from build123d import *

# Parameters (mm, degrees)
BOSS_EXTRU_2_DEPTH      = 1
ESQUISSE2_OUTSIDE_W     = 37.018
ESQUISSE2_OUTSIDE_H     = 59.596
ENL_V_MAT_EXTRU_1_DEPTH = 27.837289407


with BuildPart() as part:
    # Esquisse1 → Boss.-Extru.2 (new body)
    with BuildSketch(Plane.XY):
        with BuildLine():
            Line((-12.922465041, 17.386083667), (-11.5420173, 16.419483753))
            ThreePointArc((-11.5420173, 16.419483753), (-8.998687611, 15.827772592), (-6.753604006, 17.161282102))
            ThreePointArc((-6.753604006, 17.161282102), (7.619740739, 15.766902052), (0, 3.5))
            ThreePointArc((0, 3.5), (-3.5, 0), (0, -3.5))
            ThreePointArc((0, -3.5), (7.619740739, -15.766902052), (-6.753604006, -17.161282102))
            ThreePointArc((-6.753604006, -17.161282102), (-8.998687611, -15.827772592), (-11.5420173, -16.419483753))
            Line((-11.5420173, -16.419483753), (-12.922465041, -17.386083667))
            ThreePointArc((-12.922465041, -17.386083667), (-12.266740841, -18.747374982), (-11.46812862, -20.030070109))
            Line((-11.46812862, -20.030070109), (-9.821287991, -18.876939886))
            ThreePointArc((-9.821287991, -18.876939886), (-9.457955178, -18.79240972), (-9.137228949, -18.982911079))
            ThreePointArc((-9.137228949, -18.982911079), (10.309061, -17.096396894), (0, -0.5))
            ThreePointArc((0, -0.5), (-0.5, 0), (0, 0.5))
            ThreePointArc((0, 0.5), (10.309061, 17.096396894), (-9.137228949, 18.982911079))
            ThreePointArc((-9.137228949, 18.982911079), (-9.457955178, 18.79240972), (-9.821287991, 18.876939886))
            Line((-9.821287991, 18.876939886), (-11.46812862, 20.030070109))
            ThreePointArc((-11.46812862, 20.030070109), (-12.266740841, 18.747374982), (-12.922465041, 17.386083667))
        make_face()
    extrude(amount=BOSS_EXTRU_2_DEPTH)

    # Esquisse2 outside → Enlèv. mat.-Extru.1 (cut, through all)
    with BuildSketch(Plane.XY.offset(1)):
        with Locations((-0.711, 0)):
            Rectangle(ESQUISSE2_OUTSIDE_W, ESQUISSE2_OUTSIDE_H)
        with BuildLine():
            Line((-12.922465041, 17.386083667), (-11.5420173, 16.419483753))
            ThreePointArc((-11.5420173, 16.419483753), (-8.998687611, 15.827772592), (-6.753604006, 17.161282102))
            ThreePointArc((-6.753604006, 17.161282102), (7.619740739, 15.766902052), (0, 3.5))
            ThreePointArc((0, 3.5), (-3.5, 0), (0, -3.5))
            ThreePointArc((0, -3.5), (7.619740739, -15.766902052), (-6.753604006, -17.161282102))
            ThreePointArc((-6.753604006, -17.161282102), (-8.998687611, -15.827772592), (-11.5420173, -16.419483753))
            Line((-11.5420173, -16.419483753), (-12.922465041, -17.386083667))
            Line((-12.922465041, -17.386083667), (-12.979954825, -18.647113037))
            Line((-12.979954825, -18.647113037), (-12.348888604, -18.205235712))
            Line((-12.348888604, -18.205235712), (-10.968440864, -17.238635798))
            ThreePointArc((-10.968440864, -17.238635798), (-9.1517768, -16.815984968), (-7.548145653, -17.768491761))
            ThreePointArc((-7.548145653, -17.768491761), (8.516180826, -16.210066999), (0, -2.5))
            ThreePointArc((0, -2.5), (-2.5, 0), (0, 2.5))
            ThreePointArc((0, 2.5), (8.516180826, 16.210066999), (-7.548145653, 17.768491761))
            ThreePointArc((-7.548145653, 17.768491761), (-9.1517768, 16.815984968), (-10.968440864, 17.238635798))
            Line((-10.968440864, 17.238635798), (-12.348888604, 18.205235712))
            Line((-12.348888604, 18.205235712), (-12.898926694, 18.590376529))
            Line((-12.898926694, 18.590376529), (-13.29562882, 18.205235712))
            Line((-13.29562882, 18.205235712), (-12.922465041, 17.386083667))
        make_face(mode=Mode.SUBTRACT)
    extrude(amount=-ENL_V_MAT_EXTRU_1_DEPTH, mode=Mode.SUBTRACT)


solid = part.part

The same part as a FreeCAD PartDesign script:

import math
import FreeCAD as App
import Part
import Sketcher

V = App.Vector
Q = App.Units.Quantity

doc = App.newDocument("Part")
body = doc.addObject("PartDesign::Body", "Body")

sketch1 = doc.addObject("Sketcher::SketchObject", "Sketch")
body.addObject(sketch1)
sketch1.AttachmentSupport = (doc.XY_Plane, [""])
sketch1.MapMode = "FlatFace"
sketch1.addGeometry([
    Part.LineSegment(V(-12.92, 17.39, 0), V(-11.54, 16.42, 0)),
    Part.ArcOfCircle(Part.Circle(V(-9.53, 19.29, 0), V(0, 0, 1), 3.5), math.radians(-125), math.radians(-37)),
    Part.ArcOfCircle(Part.Circle(V(0, 12, 0), V(0, 0, 1), 8.5), math.radians(-90), math.radians(143)),
    Part.ArcOfCircle(Part.Circle(V(0, 0, 0), V(0, 0, 1), 3.5), math.radians(90), math.radians(270)),
    Part.ArcOfCircle(Part.Circle(V(0, -12, 0), V(0, 0, 1), 8.5), math.radians(-143), math.radians(90)),
    Part.ArcOfCircle(Part.Circle(V(-9.53, -19.29, 0), V(0, 0, 1), 3.5), math.radians(37), math.radians(125)),
    Part.LineSegment(V(-11.54, -16.42, 0), V(-12.92, -17.39, 0)),
    Part.ArcOfCircle(Part.Circle(V(0, -12, 0), V(0, 0, 1), 14), math.radians(-157.37), math.radians(-145)),
    Part.LineSegment(V(-11.47, -20.03, 0), V(-9.82, -18.88, 0)),
    Part.ArcOfCircle(Part.Circle(V(-9.53, -19.29, 0), V(0, 0, 1), 0.5), math.radians(37), math.radians(125)),
    Part.ArcOfCircle(Part.Circle(V(0, -12, 0), V(0, 0, 1), 11.5), math.radians(-143), math.radians(90)),
    Part.ArcOfCircle(Part.Circle(V(0, 0, 0), V(0, 0, 1), 0.5), math.radians(90), math.radians(270)),
    Part.ArcOfCircle(Part.Circle(V(0, 12, 0), V(0, 0, 1), 11.5), math.radians(-90), math.radians(143)),
    Part.ArcOfCircle(Part.Circle(V(-9.53, 19.29, 0), V(0, 0, 1), 0.5), math.radians(-125), math.radians(-37)),
    Part.LineSegment(V(-9.82, 18.88, 0), V(-11.47, 20.03, 0)),
    Part.ArcOfCircle(Part.Circle(V(0, 12, 0), V(0, 0, 1), 14), math.radians(145), math.radians(157.37)),
], False)
sketch1.addConstraint([
    Sketcher.Constraint("Tangent", 0, 2, 1, 1),
    Sketcher.Constraint("Tangent", 1, 2, 2, 2),
    Sketcher.Constraint("Tangent", 2, 1, 3, 1),
    Sketcher.Constraint("Tangent", 3, 2, 4, 2),
    Sketcher.Constraint("Tangent", 4, 1, 5, 1),
    Sketcher.Constraint("Tangent", 5, 2, 6, 1),
    Sketcher.Constraint("Coincident", 6, 2, 7, 1),
    Sketcher.Constraint("Coincident", 7, 2, 8, 1),
    Sketcher.Constraint("Tangent", 8, 2, 9, 2),
    Sketcher.Constraint("Tangent", 9, 1, 10, 1),
    Sketcher.Constraint("Tangent", 10, 2, 11, 2),
    Sketcher.Constraint("Tangent", 11, 1, 12, 1),
    Sketcher.Constraint("Tangent", 12, 2, 13, 2),
    Sketcher.Constraint("Tangent", 13, 1, 14, 1),
    Sketcher.Constraint("Coincident", 14, 2, 15, 1),
    Sketcher.Constraint("Coincident", 15, 2, 0, 1),
    Sketcher.Constraint("Coincident", 3, 3, -1, 1),
    Sketcher.Constraint("Coincident", 11, 3, -1, 1),
    Sketcher.Constraint("Coincident", 7, 3, 4, 3),
    Sketcher.Constraint("Coincident", 9, 3, 5, 3),
    Sketcher.Constraint("Coincident", 10, 3, 4, 3),
    Sketcher.Constraint("Coincident", 12, 3, 2, 3),
    Sketcher.Constraint("Coincident", 13, 3, 1, 3),
    Sketcher.Constraint("Coincident", 15, 3, 2, 3),
    Sketcher.Constraint("Equal", 1, 3),
    Sketcher.Constraint("Equal", 2, 4),
    Sketcher.Constraint("Equal", 3, 5),
    Sketcher.Constraint("Equal", 7, 15),
    Sketcher.Constraint("Symmetric", 1, 3, 5, 3, -1),
    Sketcher.Constraint("PointOnObject", 2, 3, -2),
    Sketcher.Constraint("Parallel", 6, 8),
    Sketcher.Constraint("Parallel", 0, 14),
    Sketcher.Constraint("Vertical", 0, 2, 5, 2),
    Sketcher.Constraint("Radius", 7, 14.0),
    Sketcher.Constraint("Radius", 1, 3.5),
    Sketcher.Constraint("Radius", 2, 8.5),
    Sketcher.Constraint("Radius", 9, 0.5),
    Sketcher.Constraint("Angle", 0, Q("-35 deg")),
    Sketcher.Constraint("DistanceX", 1, 3, -1, 1, 9.5345),
])
pad1 = doc.addObject("PartDesign::Pad", "Pad")
body.addObject(pad1)
pad1.Profile = sketch1
pad1.Length = 1

sketch2 = doc.addObject("Sketcher::SketchObject", "Sketch001")
body.addObject(sketch2)
sketch2.AttachmentSupport = (doc.XY_Plane, [""])
sketch2.MapMode = "FlatFace"
sketch2.AttachmentOffset = App.Placement(V(0, 0, 1), App.Rotation())
sketch2.addGeometry([
    Part.LineSegment(V(-19.2, 29.8, 0), V(-19.2, -29.8, 0)),
    Part.LineSegment(V(-19.2, -29.8, 0), V(17.8, -29.8, 0)),
    Part.LineSegment(V(17.8, -29.8, 0), V(17.8, 29.8, 0)),
    Part.LineSegment(V(17.8, 29.8, 0), V(-19.2, 29.8, 0)),
    Part.LineSegment(V(-11.5, 16.4, 0), V(-12.9, 17.4, 0)),
    Part.LineSegment(V(-12.9, 17.4, 0), V(-13.3, 18.2, 0)),
    Part.LineSegment(V(-13.3, 18.2, 0), V(-12.9, 18.6, 0)),
    Part.LineSegment(V(-12.9, 18.6, 0), V(-12.3, 18.2, 0)),
    Part.LineSegment(V(-12.3, 18.2, 0), V(-11, 17.2, 0)),
    Part.ArcOfCircle(Part.Circle(V(-9.5, 19.3, 0), V(0, 0, 1), 2.5), math.radians(-125), math.radians(-37)),
    Part.ArcOfCircle(Part.Circle(V(0, 12, 0), V(0, 0, 1), 9.5), math.radians(-90), math.radians(143)),
    Part.ArcOfCircle(Part.Circle(V(0, 0, 0), V(0, 0, 1), 2.5), math.radians(90), math.radians(270)),
    Part.ArcOfCircle(Part.Circle(V(0, -12, 0), V(0, 0, 1), 9.5), math.radians(-143), math.radians(90)),
    Part.ArcOfCircle(Part.Circle(V(-9.5, -19.3, 0), V(0, 0, 1), 2.5), math.radians(37), math.radians(125)),
    Part.LineSegment(V(-11, -17.2, 0), V(-12.3, -18.2, 0)),
    Part.LineSegment(V(-12.3, -18.2, 0), V(-13, -18.6, 0)),
    Part.LineSegment(V(-13, -18.6, 0), V(-12.9, -17.4, 0)),
    Part.LineSegment(V(-12.9, -17.4, 0), V(-11.5, -16.4, 0)),
    Part.ArcOfCircle(Part.Circle(V(-9.5, -19.3, 0), V(0, 0, 1), 3.5), math.radians(37), math.radians(125)),
    Part.ArcOfCircle(Part.Circle(V(0, -12, 0), V(0, 0, 1), 8.5), math.radians(-143), math.radians(90)),
    Part.ArcOfCircle(Part.Circle(V(0, 0, 0), V(0, 0, 1), 3.5), math.radians(90), math.radians(270)),
    Part.ArcOfCircle(Part.Circle(V(0, 12, 0), V(0, 0, 1), 8.5), math.radians(-90), math.radians(143)),
    Part.ArcOfCircle(Part.Circle(V(-9.5, 19.3, 0), V(0, 0, 1), 3.5), math.radians(-125), math.radians(-37)),
], False)
sketch2.addConstraint([
    Sketcher.Constraint("Coincident", 0, 2, 1, 1),
    Sketcher.Constraint("Coincident", 1, 2, 2, 1),
    Sketcher.Constraint("Coincident", 2, 2, 3, 1),
    Sketcher.Constraint("Coincident", 3, 2, 0, 1),
    Sketcher.Constraint("Coincident", 4, 2, 5, 1),
    Sketcher.Constraint("Coincident", 5, 2, 6, 1),
    Sketcher.Constraint("Coincident", 6, 2, 7, 1),
    Sketcher.Constraint("Coincident", 7, 2, 8, 1),
    Sketcher.Constraint("Tangent", 8, 2, 9, 1),
    Sketcher.Constraint("Tangent", 9, 2, 10, 2),
    Sketcher.Constraint("Tangent", 10, 1, 11, 1),
    Sketcher.Constraint("Tangent", 11, 2, 12, 2),
    Sketcher.Constraint("Tangent", 12, 1, 13, 1),
    Sketcher.Constraint("Tangent", 13, 2, 14, 1),
    Sketcher.Constraint("Coincident", 14, 2, 15, 1),
    Sketcher.Constraint("Coincident", 15, 2, 16, 1),
    Sketcher.Constraint("Coincident", 16, 2, 17, 1),
    Sketcher.Constraint("Tangent", 17, 2, 18, 2),
    Sketcher.Constraint("Tangent", 18, 1, 19, 1),
    Sketcher.Constraint("Tangent", 19, 2, 20, 2),
    Sketcher.Constraint("Tangent", 20, 1, 21, 1),
    Sketcher.Constraint("Tangent", 21, 2, 22, 2),
    Sketcher.Constraint("Tangent", 22, 1, 4, 1),
    Sketcher.Constraint("Vertical", 0),
    Sketcher.Constraint("Horizontal", 1),
    Sketcher.Constraint("Vertical", 2),
    Sketcher.Constraint("Horizontal", 3),
    Sketcher.Constraint("Coincident", 11, 3, -1, 1),
    Sketcher.Constraint("Coincident", 20, 3, -1, 1),
    Sketcher.Constraint("Coincident", 18, 3, 13, 3),
    Sketcher.Constraint("Coincident", 19, 3, 12, 3),
    Sketcher.Constraint("Coincident", 21, 3, 10, 3),
    Sketcher.Constraint("Coincident", 22, 3, 9, 3),
    Sketcher.Constraint("Equal", 9, 11),
    Sketcher.Constraint("Equal", 10, 12),
    Sketcher.Constraint("Equal", 11, 13),
    Sketcher.Constraint("Symmetric", 9, 3, 13, 3, -1),
    Sketcher.Constraint("Symmetric", 7, 2, 14, 2, -1),
    Sketcher.Constraint("Symmetric", 4, 2, 16, 2, -1),
    Sketcher.Constraint("PointOnObject", 10, 3, -2),
    Sketcher.Constraint("Parallel", 4, 7),
    Sketcher.Constraint("Parallel", 7, 8),
    Sketcher.Constraint("Parallel", 14, 15),
    Sketcher.Constraint("Horizontal", 5, 2, 7, 2),
    Sketcher.Constraint("Equal", 4, 8),
    Sketcher.Constraint("Radius", 9, 2.5),
    Sketcher.Constraint("Radius", 10, 9.5),
    Sketcher.Constraint("Radius", 18, 3.5),
    Sketcher.Constraint("Angle", 4, Q("145 deg")),
    Sketcher.Constraint("DistanceX", 1, 1, 1, 2, 37.018),
    Sketcher.Constraint("DistanceY", 0, 2, 0, 1, 59.596),
    Sketcher.Constraint("DistanceX", 0, 2, -1, 1, 19.22),
    Sketcher.Constraint("DistanceY", 0, 2, -1, 1, 29.798),
    Sketcher.Constraint("DistanceX", 9, 3, -1, 1, 9.5345),
    Sketcher.Constraint("DistanceY", 8, 2, 7, 2, 0.9666),
    Sketcher.Constraint("Distance", 15, 0.77039),
    Sketcher.Constraint("DistanceX", 5, 2, -1, 1, 13.295629),
    Sketcher.Constraint("DistanceY", 5, 2, 6, 2, 0.385141),
])
pocket1 = doc.addObject("PartDesign::Pocket", "Pocket")
body.addObject(pocket1)
pocket1.Profile = sketch2
pocket1.Type = "ThroughAll"

doc.recompute()
